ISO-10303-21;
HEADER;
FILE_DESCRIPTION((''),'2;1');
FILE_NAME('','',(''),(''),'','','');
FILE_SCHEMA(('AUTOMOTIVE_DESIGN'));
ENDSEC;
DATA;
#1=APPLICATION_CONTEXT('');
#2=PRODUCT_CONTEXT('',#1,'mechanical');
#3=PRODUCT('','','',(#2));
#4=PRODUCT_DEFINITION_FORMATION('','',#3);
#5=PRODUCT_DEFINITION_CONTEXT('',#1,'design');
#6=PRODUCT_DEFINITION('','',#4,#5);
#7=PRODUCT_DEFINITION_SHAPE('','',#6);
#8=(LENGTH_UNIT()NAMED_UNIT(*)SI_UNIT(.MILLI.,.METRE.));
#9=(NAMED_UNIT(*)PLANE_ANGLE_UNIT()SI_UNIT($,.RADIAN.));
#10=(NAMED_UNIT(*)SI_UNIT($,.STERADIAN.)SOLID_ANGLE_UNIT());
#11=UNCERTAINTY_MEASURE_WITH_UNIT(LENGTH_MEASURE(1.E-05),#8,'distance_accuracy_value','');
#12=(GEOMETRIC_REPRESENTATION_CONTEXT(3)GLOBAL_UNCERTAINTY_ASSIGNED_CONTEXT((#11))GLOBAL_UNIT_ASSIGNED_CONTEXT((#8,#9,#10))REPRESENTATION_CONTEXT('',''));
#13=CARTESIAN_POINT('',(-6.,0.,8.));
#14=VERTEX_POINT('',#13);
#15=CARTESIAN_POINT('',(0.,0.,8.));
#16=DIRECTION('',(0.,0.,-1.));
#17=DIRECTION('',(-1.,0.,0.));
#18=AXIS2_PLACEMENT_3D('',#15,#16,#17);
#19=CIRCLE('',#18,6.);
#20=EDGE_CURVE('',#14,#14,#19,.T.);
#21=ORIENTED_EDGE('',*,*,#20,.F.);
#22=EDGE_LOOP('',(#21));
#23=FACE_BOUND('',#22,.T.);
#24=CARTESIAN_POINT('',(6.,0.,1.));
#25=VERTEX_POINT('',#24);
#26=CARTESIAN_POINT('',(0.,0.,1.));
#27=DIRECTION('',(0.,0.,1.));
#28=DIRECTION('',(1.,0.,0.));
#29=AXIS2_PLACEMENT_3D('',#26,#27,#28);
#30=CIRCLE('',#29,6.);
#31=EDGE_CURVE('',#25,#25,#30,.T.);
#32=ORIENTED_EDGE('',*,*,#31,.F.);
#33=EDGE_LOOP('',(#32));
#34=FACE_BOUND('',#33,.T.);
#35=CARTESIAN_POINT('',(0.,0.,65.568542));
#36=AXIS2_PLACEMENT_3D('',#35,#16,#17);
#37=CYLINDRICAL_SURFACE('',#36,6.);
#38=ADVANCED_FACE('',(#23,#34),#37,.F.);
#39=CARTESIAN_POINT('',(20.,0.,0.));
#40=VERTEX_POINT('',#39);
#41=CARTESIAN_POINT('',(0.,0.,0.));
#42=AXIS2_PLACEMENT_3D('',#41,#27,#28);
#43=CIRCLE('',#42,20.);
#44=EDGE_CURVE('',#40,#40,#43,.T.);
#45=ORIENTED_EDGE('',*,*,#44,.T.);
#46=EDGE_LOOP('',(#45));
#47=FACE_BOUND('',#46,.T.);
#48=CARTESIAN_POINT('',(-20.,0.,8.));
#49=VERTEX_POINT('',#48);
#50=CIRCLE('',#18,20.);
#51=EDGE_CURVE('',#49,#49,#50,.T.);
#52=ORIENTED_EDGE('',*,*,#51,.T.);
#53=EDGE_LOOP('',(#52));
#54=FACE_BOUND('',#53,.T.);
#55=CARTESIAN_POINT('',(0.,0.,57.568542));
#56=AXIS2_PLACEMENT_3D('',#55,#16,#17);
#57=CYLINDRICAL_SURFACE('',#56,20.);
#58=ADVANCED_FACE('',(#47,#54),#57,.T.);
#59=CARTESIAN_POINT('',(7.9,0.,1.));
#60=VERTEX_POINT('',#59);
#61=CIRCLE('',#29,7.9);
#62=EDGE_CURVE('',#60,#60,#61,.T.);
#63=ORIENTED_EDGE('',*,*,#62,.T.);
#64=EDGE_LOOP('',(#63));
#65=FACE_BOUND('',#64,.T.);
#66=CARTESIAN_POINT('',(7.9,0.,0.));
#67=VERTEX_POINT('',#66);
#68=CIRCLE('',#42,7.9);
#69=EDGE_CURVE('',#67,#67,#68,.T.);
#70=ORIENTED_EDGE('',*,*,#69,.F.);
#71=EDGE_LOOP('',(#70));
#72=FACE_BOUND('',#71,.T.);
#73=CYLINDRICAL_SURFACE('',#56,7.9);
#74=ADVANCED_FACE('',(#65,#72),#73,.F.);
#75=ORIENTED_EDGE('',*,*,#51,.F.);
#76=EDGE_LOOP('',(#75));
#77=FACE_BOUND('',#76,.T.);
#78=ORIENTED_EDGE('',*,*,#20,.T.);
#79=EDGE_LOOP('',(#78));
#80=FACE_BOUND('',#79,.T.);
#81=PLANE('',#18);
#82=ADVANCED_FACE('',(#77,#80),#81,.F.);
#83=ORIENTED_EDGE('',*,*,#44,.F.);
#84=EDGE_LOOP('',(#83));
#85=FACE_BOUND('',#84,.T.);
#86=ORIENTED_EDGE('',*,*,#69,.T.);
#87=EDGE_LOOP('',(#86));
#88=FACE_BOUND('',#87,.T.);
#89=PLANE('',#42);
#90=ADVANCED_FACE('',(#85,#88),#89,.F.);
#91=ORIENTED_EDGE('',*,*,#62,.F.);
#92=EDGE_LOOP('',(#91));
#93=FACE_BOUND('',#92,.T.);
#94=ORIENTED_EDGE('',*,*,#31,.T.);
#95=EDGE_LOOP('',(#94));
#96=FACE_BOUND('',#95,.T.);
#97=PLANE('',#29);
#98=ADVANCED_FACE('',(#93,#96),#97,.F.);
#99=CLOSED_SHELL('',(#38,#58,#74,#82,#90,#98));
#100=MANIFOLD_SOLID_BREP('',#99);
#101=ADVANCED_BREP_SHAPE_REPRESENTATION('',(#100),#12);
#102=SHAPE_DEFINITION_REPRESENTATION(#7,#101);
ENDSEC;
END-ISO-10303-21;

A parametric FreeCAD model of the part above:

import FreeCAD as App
import Part
import Sketcher
Q = App.Units.Quantity

doc = App.newDocument("Part")
body = doc.addObject("PartDesign::Body", "Body")

# Sketch on XY plane
sketch1 = doc.addObject("Sketcher::SketchObject", "Sketch")
body.addObject(sketch1)
sketch1.AttachmentSupport = (doc.XY_Plane, [""])
sketch1.MapMode = "FlatFace"
sketch1.addGeometry([
    Part.Circle(App.Vector(0, 0, 0), App.Vector(0, 0, 1), 20),
    Part.Circle(App.Vector(0, 0, 0), App.Vector(0, 0, 1), 8),
], False)
sketch1.addConstraint([
    Sketcher.Constraint("Coincident", 0, 3, -1, 1),
    Sketcher.Constraint("Coincident", 1, 3, -1, 1),
    Sketcher.Constraint("Diameter", 0, Q("40 mm")),
    Sketcher.Constraint("Diameter", 1, Q("15.8 mm")),
])
pad1 = doc.addObject("PartDesign::Pad", "Pad")
body.addObject(pad1)
pad1.Profile = sketch1
pad1.Length = 1

# Sketch on XY plane
sketch2 = doc.addObject("Sketcher::SketchObject", "Sketch001")
body.addObject(sketch2)
sketch2.AttachmentSupport = (doc.XY_Plane, [""])
sketch2.MapMode = "FlatFace"
sketch2.AttachmentOffset = App.Placement(App.Vector(0, 0, 1), App.Rotation())
sketch2.addGeometry([
    Part.Circle(App.Vector(0, 0, 0), App.Vector(0, 0, 1), 20),
    Part.Circle(App.Vector(0, 0, 0), App.Vector(0, 0, 1), 6),
], False)
sketch2.addConstraint([
    Sketcher.Constraint("Coincident", 0, 3, -1, 1),
    Sketcher.Constraint("Coincident", 1, 3, -1, 1),
    Sketcher.Constraint("Diameter", 0, Q("40 mm")),
    Sketcher.Constraint("Diameter", 1, Q("12 mm")),
])
pad2 = doc.addObject("PartDesign::Pad", "Pad001")
body.addObject(pad2)
pad2.Profile = sketch2
pad2.Length = 7

doc.recompute()
